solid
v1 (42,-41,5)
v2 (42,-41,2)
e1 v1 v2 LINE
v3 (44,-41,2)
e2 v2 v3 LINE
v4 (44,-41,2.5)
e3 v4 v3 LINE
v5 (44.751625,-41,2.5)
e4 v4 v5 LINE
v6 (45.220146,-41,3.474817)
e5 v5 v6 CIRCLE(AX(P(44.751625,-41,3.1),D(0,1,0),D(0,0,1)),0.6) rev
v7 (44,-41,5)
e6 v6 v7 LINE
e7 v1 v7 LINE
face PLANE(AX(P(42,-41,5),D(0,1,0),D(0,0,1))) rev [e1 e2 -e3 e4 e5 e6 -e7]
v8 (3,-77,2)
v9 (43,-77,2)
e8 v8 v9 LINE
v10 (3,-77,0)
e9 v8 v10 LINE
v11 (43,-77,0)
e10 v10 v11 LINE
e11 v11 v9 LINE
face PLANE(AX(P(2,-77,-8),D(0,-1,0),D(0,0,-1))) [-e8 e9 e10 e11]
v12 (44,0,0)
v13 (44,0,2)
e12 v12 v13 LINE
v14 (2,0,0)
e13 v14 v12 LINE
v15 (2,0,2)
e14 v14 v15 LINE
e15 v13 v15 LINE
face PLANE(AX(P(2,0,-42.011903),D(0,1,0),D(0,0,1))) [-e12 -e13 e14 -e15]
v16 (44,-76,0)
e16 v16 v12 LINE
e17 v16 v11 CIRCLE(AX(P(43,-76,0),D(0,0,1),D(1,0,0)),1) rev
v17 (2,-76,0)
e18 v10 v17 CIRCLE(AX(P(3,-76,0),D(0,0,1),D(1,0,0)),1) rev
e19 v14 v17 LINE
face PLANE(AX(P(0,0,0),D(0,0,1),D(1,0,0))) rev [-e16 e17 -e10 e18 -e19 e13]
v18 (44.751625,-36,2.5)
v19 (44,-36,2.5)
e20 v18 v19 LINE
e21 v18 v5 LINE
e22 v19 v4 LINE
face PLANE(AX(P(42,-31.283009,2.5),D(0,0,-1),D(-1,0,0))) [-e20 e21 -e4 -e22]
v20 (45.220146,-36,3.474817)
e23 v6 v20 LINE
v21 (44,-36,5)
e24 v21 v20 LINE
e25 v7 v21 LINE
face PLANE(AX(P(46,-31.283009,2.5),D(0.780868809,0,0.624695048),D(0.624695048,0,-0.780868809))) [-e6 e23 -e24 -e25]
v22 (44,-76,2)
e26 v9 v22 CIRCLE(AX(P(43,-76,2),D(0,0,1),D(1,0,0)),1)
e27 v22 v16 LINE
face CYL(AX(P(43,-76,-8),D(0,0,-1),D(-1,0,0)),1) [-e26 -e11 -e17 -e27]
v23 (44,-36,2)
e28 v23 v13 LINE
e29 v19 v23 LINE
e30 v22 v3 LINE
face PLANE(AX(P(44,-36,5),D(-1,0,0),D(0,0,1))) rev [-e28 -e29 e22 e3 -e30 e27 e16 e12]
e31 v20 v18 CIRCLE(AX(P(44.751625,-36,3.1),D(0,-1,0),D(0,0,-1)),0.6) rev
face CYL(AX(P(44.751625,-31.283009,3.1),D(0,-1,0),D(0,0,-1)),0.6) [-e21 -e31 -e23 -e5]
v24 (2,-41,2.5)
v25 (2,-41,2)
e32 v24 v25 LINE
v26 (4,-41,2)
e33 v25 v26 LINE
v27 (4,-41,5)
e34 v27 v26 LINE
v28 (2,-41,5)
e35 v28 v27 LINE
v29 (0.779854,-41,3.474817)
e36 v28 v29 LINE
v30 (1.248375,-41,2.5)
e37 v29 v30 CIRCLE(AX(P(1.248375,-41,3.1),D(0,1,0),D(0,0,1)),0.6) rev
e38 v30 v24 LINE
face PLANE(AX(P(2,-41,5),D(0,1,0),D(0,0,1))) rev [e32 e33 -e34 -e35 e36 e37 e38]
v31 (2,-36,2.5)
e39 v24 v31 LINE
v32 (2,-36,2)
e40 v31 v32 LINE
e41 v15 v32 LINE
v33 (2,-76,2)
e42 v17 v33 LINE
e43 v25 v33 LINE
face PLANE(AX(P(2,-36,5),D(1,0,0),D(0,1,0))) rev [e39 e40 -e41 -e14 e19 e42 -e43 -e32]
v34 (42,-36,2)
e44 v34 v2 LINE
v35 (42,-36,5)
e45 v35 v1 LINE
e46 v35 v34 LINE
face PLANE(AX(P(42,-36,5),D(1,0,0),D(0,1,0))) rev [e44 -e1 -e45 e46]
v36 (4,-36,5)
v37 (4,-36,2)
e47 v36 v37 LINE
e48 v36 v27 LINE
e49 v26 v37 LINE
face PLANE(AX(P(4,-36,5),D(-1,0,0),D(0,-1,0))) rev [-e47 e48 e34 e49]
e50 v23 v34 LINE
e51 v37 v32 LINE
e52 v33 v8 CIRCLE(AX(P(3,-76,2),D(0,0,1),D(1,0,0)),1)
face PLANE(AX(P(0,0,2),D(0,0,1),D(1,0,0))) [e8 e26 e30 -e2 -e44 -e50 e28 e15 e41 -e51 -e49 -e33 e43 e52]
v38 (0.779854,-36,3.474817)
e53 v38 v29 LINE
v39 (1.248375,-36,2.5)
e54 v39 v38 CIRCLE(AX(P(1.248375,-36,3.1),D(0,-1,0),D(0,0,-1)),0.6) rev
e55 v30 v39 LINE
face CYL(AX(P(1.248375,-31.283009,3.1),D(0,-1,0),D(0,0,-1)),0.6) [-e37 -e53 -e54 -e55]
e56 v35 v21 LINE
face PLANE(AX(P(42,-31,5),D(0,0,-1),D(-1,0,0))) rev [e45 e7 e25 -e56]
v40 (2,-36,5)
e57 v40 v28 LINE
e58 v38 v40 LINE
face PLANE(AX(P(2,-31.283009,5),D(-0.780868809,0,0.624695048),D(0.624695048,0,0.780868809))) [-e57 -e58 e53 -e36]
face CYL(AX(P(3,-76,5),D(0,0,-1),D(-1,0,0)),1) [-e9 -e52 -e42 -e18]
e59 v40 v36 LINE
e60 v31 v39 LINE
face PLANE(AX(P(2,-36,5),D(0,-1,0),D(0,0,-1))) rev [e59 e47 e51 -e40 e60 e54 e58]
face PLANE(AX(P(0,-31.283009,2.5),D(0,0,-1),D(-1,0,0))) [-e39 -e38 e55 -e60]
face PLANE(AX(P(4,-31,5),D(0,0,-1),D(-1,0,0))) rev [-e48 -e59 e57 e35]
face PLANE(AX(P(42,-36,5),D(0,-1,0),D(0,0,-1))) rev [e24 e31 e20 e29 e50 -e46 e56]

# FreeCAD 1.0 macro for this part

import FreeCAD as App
import Part
import Sketcher


def edges_at(feature, points):
    """Names of the edges that pass closest to the given points."""
    edges = feature.Shape.Edges
    near = lambda p: min(range(len(edges)), key=lambda i: edges[i].distToShape(Part.Vertex(*p))[0])
    return sorted({f"Edge{near(p) + 1}" for p in points})


def add_polygon(sketch, points):
    """Adds a closed chain of lines whose ends are joined by coincident constraints."""
    first, n = sketch.GeometryCount, len(points)
    for a, b in zip(points, points[1:] + points[:1]):
        sketch.addGeometry(Part.LineSegment(App.Vector(*a, 0), App.Vector(*b, 0)), False)
    for i in range(n):
        sketch.addConstraint(Sketcher.Constraint("Coincident", first + i, 2, first + (i + 1) % n, 1))

doc = App.newDocument("Part")
body = doc.addObject("PartDesign::Body", "Body")

# Sketch on XY plane
sketch1 = body.newObject("Sketcher::SketchObject", "Sketch")
sketch1.AttachmentSupport = (doc.getObject("XY_Plane"), [""])
sketch1.MapMode = "FlatFace"
add_polygon(sketch1, [(0, 0), (0, -79), (46, -79), (46, 0)])  # lines 0-3
sketch1.addConstraint([
    Sketcher.Constraint("Vertical", 0),
    Sketcher.Constraint("Horizontal", 1),
    Sketcher.Constraint("Vertical", 2),
    Sketcher.Constraint("Horizontal", 3),
    Sketcher.Constraint("Coincident", 3, 2, -1, 1),
    Sketcher.Constraint("DistanceX", 1, 1, 1, 2, 46.0),
    Sketcher.Constraint("DistanceY", 0, 2, 0, 1, 79.0),
])
pad1 = body.newObject("PartDesign::Pad", "Pad")
pad1.Profile = sketch1
pad1.Length = 2

# Sketch on XY plane
sketch2 = body.newObject("Sketcher::SketchObject", "Sketch001")
sketch2.AttachmentSupport = (doc.getObject("XY_Plane"), [""])
sketch2.MapMode = "FlatFace"
sketch2.AttachmentOffset = App.Placement(App.Vector(0, 0, 2), App.Rotation())
add_polygon(sketch2, [(2, -36), (2, -41), (4, -41), (4, -36)])  # lines 0-3
add_polygon(sketch2, [(42, -36), (42, -41), (44, -41), (44, -36)])  # lines 4-7
sketch2.addConstraint([
    Sketcher.Constraint("Vertical", 0),
    Sketcher.Constraint("Horizontal", 1),
    Sketcher.Constraint("Vertical", 2),
    Sketcher.Constraint("Horizontal", 3),
    Sketcher.Constraint("Vertical", 4),
    Sketcher.Constraint("Horizontal", 5),
    Sketcher.Constraint("Vertical", 6),
    Sketcher.Constraint("Horizontal", 7),
    Sketcher.Constraint("Horizontal", 1, 2, 4, 2),
    Sketcher.Constraint("Horizontal", 3, 2, 6, 2),
    Sketcher.Constraint("Equal", 3, 5),
    Sketcher.Constraint("DistanceX", 1, 1, 1, 2, 2.0),
    Sketcher.Constraint("DistanceY", 0, 2, 0, 1, 5.0),
    Sketcher.Constraint("DistanceX", -1, 1, 0, 2, 2.0),
    Sketcher.Constraint("DistanceY", 0, 2, -1, 1, 41.0),
    Sketcher.Constraint("DistanceX", -1, 1, 4, 2, 42.0),
])
pad2 = body.newObject("PartDesign::Pad", "Pad001")
pad2.Profile = sketch2
pad2.Length = 3

# Sketch on XZ plane
sketch3 = body.newObject("Sketcher::SketchObject", "Sketch002")
sketch3.AttachmentSupport = (doc.getObject("XZ_Plane"), [""])
sketch3.MapMode = "FlatFace"
sketch3.AttachmentOffset = App.Placement(App.Vector(0, 0, 41), App.Rotation())
add_polygon(sketch3, [(2, 7), (0, 5), (4, 5), (4, 7)])  # lines 0-3
add_polygon(sketch3, [(44, 7), (42, 7), (42, 5), (46, 5)])  # lines 4-7
sketch3.addConstraint([
    Sketcher.Constraint("Horizontal", 1),
    Sketcher.Constraint("Vertical", 2),
    Sketcher.Constraint("Horizontal", 3),
    Sketcher.Constraint("Horizontal", 4),
    Sketcher.Constraint("Vertical", 5),
    Sketcher.Constraint("Horizontal", 6),
    Sketcher.Constraint("PointOnObject", 0, 2, -2),
    Sketcher.Constraint("Perpendicular", 0, 7),
    Sketcher.Constraint("Horizontal", 3, 2, 4, 2),
    Sketcher.Constraint("Horizontal", 1, 2, 5, 2),
    Sketcher.Constraint("Equal", 3, 4),
    Sketcher.Constraint("Equal", 1, 6),
    Sketcher.Constraint("Equal", 4, 2),
    Sketcher.Constraint("DistanceX", 1, 1, 1, 2, 4.0),
    Sketcher.Constraint("DistanceY", -1, 1, 0, 2, 5.0),
    Sketcher.Constraint("DistanceX", -1, 1, 4, 2, 42.0),
])
pad3 = body.newObject("PartDesign::Pad", "Pad002")
pad3.Profile = sketch3
pad3.Length = 5
pad3.Reversed = True
doc.recompute()

fillet = body.newObject("PartDesign::Fillet", "Fillet")
fillet.Base = (pad3, edges_at(pad3, [(0, -38.5, 5), (46, -38.5, 5)]))
fillet.Radius = 0.6

# Sketch on XY plane
sketch4 = body.newObject("Sketcher::SketchObject", "Sketch003")
sketch4.AttachmentSupport = (doc.getObject("XY_Plane"), [""])
sketch4.MapMode = "FlatFace"
sketch4.AttachmentOffset = App.Placement(App.Vector(0, 0, 2), App.Rotation())
add_polygon(sketch4, [(0, 0), (0, -79), (46, -79), (46, 0)])  # lines 0-3
add_polygon(sketch4, [(44, -77), (2, -77), (2, -2), (44, -2)])  # lines 4-7
sketch4.addConstraint([
    Sketcher.Constraint("Vertical", 0),
    Sketcher.Constraint("Horizontal", 1),
    Sketcher.Constraint("Vertical", 2),
    Sketcher.Constraint("Horizontal", 3),
    Sketcher.Constraint("Horizontal", 4),
    Sketcher.Constraint("Vertical", 5),
    Sketcher.Constraint("Horizontal", 6),
    Sketcher.Constraint("Vertical", 7),
    Sketcher.Constraint("Coincident", 3, 2, -1, 1),
    Sketcher.Constraint("DistanceX", 1, 1, 1, 2, 46.0),
    Sketcher.Constraint("DistanceX", 4, 2, 4, 1, 42.0),
    Sketcher.Constraint("DistanceY", 0, 2, 0, 1, 79.0),
    Sketcher.Constraint("DistanceY", 5, 1, 5, 2, 75.0),
    Sketcher.Constraint("DistanceX", -1, 1, 4, 2, 2.0),
    Sketcher.Constraint("DistanceY", 4, 2, -1, 1, 77.0),
])
pocket1 = body.newObject("PartDesign::Pocket", "Pocket")
pocket1.Profile = sketch4
pocket1.Length = 10

# Sketch on XY plane
sketch5 = body.newObject("Sketcher::SketchObject", "Sketch004")
sketch5.AttachmentSupport = (doc.getObject("XY_Plane"), [""])
sketch5.MapMode = "FlatFace"
sketch5.AttachmentOffset = App.Placement(App.Vector(0, 0, 2), App.Rotation())
add_polygon(sketch5, [(2, -1), (2, -2), (44, -2), (44, -1)])  # lines 0-3
sketch5.addConstraint([
    Sketcher.Constraint("Vertical", 0),
    Sketcher.Constraint("Horizontal", 1),
    Sketcher.Constraint("Vertical", 2),
    Sketcher.Constraint("Horizontal", 3),
    Sketcher.Constraint("DistanceX", 1, 1, 1, 2, 42.0),
    Sketcher.Constraint("DistanceY", 0, 2, 0, 1, 1.0),
    Sketcher.Constraint("DistanceX", -1, 1, 0, 2, 2.0),
    Sketcher.Constraint("DistanceY", 0, 2, -1, 1, 2.0),
])
pad4 = body.newObject("PartDesign::Pad", "Pad003")
pad4.Profile = sketch5
pad4.Length = 2
pad4.Reversed = True

# Sketch on XY plane
sketch6 = body.newObject("Sketcher::SketchObject", "Sketch005")
sketch6.AttachmentSupport = (doc.getObject("XY_Plane"), [""])
sketch6.MapMode = "FlatFace"
sketch6.AttachmentOffset = App.Placement(App.Vector(0, 0, 2), App.Rotation())
add_polygon(sketch6, [(2, 0), (2, -1), (44, -1), (44, 0)])  # lines 0-3
sketch6.addConstraint([
    Sketcher.Constraint("Vertical", 0),
    Sketcher.Constraint("Horizontal", 1),
    Sketcher.Constraint("Vertical", 2),
    Sketcher.Constraint("Horizontal", 3),
    Sketcher.Constraint("PointOnObject", 2, 2, -1),
    Sketcher.Constraint("DistanceX", 1, 1, 1, 2, 42.0),
    Sketcher.Constraint("DistanceY", 0, 2, 0, 1, 1.0),
    Sketcher.Constraint("DistanceX", -1, 1, 0, 2, 2.0),
])
pad5 = body.newObject("PartDesign::Pad", "Pad004")
pad5.Profile = sketch6
pad5.Length = 2
pad5.Reversed = True
doc.recompute()

fillet2 = body.newObject("PartDesign::Fillet", "Fillet001")
fillet2.Base = (pad5, edges_at(pad5, [(44, -77, 1), (2, -77, 1)]))
fillet2.Radius = 1

# Sketch on XZ plane
sketch7 = body.newObject("Sketcher::SketchObject", "Sketch006")
sketch7.AttachmentSupport = (doc.getObject("XZ_Plane"), [""])
sketch7.MapMode = "FlatFace"
sketch7.AttachmentOffset = App.Placement(App.Vector(0, 0, 41), App.Rotation())
add_polygon(sketch7, [(-1.2, 7.5), (-1.2, 5), (4, 5), (4, 7.5)])  # lines 0-3
add_polygon(sketch7, [(42, 7.9), (42, 5), (46.4, 5), (46.4, 7.9)])  # lines 4-7
sketch7.addConstraint([
    Sketcher.Constraint("Vertical", 0),
    Sketcher.Constraint("Horizontal", 1),
    Sketcher.Constraint("Vertical", 2),
    Sketcher.Constraint("Horizontal", 3),
    Sketcher.Constraint("Vertical", 4),
    Sketcher.Constraint("Horizontal", 5),
    Sketcher.Constraint("Vertical", 6),
    Sketcher.Constraint("Horizontal", 7),
    Sketcher.Constraint("Horizontal", 1, 2, 4, 2),
    Sketcher.Constraint("DistanceY", -1, 1, 0, 2, 5.0),
    Sketcher.Constraint("DistanceX", -1, 1, 1, 2, 4.0),
    Sketcher.Constraint("DistanceX", -1, 1, 4, 2, 42.0),
    Sketcher.Constraint("DistanceY", 4, 2, 4, 1, 2.905988),
    Sketcher.Constraint("DistanceX", 1, 1, 1, 2, 5.220053),
    Sketcher.Constraint("DistanceX", 5, 1, 5, 2, 4.447072),
    Sketcher.Constraint("DistanceY", 0, 2, 0, 1, 2.493732),
])
pocket2 = body.newObject("PartDesign::Pocket", "Pocket001")
pocket2.Profile = sketch7
pocket2.Length = 10

# Sketch on XZ plane
sketch8 = body.newObject("Sketcher::SketchObject", "Sketch007")
sketch8.AttachmentSupport = (doc.getObject("XZ_Plane"), [""])
sketch8.MapMode = "FlatFace"
sketch8.AttachmentOffset = App.Placement(App.Vector(0, 0, 41), App.Rotation())
add_polygon(sketch8, [(2, 5), (0, 2.5), (4, 2.5), (4, 5)])  # lines 0-3
add_polygon(sketch8, [(42, 2.5), (46, 2.5), (44, 5), (42, 5)])  # lines 4-7
sketch8.addConstraint([
    Sketcher.Constraint("Horizontal", 1),
    Sketcher.Constraint("Vertical", 2),
    Sketcher.Constraint("Horizontal", 3),
    Sketcher.Constraint("Horizontal", 4),
    Sketcher.Constraint("Horizontal", 6),
    Sketcher.Constraint("Vertical", 7),
    Sketcher.Constraint("PointOnObject", 0, 2, -2),
    Sketcher.Constraint("Horizontal", 1, 2, 4, 2),
    Sketcher.Constraint("Horizontal", 3, 2, 5, 2),
    Sketcher.Constraint("Equal", 1, 4),
    Sketcher.Constraint("Equal", 3, 6),
    Sketcher.Constraint("DistanceX", 1, 1, 1, 2, 4.0),
    Sketcher.Constraint("DistanceX", 3, 2, 3, 1, 2.0),
    Sketcher.Constraint("DistanceY", 2, 1, 2, 2, 2.5),
    Sketcher.Constraint("DistanceY", -1, 1, 2, 2, 5.0),
    Sketcher.Constraint("DistanceX", -1, 1, 4, 2, 46.0),
])
pad6 = body.newObject("PartDesign::Pad", "Pad005")
pad6.Profile = sketch8
pad6.Length = 5
pad6.Reversed = True
doc.recompute()

fillet3 = body.newObject("PartDesign::Fillet", "Fillet002")
fillet3.Base = (pad6, edges_at(pad6, [(0, -38.5, 2.5), (46, -38.5, 2.5)]))
fillet3.Radius = 0.6

doc.recompute()
